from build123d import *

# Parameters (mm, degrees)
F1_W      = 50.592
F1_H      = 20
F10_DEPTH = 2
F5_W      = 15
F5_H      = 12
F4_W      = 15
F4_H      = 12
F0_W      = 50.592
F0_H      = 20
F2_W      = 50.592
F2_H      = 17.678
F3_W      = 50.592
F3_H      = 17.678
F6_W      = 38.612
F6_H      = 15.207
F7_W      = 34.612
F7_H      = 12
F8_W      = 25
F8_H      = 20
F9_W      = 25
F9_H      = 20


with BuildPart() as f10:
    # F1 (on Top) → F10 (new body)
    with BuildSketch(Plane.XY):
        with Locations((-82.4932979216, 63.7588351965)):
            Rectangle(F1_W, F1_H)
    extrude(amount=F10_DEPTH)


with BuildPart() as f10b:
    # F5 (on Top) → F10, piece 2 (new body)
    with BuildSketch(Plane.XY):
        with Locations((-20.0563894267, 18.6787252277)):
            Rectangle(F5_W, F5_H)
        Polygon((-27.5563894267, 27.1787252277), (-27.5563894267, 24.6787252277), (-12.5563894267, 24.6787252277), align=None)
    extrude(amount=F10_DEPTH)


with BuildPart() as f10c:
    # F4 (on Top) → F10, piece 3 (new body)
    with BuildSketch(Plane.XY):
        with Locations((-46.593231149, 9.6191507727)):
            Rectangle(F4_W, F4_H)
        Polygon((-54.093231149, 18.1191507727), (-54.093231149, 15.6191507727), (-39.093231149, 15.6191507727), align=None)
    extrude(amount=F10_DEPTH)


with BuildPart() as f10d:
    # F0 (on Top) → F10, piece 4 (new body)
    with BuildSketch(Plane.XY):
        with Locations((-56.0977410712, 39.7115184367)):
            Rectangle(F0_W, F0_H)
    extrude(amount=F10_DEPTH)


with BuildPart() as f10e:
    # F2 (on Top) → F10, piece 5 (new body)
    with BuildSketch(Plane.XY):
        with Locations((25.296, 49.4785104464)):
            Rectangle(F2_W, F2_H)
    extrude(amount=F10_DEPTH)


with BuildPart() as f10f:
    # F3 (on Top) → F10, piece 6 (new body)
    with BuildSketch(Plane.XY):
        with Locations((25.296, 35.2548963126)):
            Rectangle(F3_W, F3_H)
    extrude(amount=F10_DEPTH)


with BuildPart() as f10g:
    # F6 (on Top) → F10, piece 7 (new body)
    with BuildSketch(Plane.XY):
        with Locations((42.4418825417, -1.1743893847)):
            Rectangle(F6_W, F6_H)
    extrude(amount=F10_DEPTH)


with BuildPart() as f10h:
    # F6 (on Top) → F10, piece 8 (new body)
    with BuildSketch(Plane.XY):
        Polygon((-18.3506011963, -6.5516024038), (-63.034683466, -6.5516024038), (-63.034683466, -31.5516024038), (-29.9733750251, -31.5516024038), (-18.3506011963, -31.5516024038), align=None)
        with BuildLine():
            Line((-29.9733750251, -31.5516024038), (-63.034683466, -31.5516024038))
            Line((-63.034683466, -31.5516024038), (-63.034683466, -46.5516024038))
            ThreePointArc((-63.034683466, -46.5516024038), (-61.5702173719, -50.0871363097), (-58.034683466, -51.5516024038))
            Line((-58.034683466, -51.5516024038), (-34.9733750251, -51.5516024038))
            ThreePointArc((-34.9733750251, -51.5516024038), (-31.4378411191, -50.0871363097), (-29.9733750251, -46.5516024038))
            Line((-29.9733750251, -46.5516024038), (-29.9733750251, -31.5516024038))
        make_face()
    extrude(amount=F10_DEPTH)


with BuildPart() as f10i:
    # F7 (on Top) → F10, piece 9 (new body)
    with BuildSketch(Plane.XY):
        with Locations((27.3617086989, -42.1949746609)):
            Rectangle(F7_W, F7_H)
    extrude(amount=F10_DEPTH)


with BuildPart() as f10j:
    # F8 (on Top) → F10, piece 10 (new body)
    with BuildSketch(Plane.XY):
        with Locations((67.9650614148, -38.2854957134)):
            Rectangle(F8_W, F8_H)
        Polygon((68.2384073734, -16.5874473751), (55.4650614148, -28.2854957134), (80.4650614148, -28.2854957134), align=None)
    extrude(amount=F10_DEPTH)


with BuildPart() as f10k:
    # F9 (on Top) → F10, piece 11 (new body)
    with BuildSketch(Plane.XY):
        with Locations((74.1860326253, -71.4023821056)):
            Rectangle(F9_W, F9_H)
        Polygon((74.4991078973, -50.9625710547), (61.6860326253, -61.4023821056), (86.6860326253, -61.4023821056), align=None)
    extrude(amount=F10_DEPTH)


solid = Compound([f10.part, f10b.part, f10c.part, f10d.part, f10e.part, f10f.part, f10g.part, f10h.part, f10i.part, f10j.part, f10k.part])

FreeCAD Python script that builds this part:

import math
import FreeCAD as App
import Part
import Sketcher

V = App.Vector

doc = App.newDocument("Part")
body = doc.addObject("PartDesign::Body", "Body")

# Sketch on XY plane
sketch1 = body.newObject("Sketcher::SketchObject", "Sketch")
sketch1.AttachmentSupport = (doc.getObject("XY_Plane"), [""])
sketch1.MapMode = "FlatFace"
sketch1.addGeometry([
    Part.LineSegment(V(-108, 74, 0), V(-108, 54, 0)),
    Part.LineSegment(V(-108, 54, 0), V(-57, 54, 0)),
    Part.LineSegment(V(-57, 54, 0), V(-57, 74, 0)),
    Part.LineSegment(V(-57, 74, 0), V(-108, 74, 0)),
], False)
sketch1.addConstraint([
    Sketcher.Constraint("Coincident", 0, 2, 1, 1),
    Sketcher.Constraint("Coincident", 1, 2, 2, 1),
    Sketcher.Constraint("Coincident", 2, 2, 3, 1),
    Sketcher.Constraint("Coincident", 3, 2, 0, 1),
    Sketcher.Constraint("Vertical", 0),
    Sketcher.Constraint("Horizontal", 1),
    Sketcher.Constraint("Vertical", 2),
    Sketcher.Constraint("Horizontal", 3),
    Sketcher.Constraint("DistanceY", 0, 2, 0, 1, 20.0),
    Sketcher.Constraint("DistanceX", 1, 1, 1, 2, 50.592),
    Sketcher.Constraint("DistanceX", 0, 2, -1, 1, 107.789298),
    Sketcher.Constraint("DistanceY", -1, 1, 0, 2, 53.758835),
])
pad1 = body.newObject("PartDesign::Pad", "Pad")
pad1.Profile = sketch1
pad1.Length = 2
body2 = doc.addObject("PartDesign::Body", "Body001")

# Sketch on XY plane
sketch2 = body2.newObject("Sketcher::SketchObject", "Sketch001")
sketch2.AttachmentSupport = (doc.getObject("XY_Plane001"), [""])
sketch2.MapMode = "FlatFace"
sketch2.addGeometry([
    Part.LineSegment(V(-28, 13, 0), V(-13, 13, 0)),
    Part.LineSegment(V(-13, 13, 0), V(-13, 25, 0)),
    Part.LineSegment(V(-13, 25, 0), V(-28, 27, 0)),
    Part.LineSegment(V(-28, 27, 0), V(-28, 13, 0)),
], False)
sketch2.addConstraint([
    Sketcher.Constraint("Coincident", 0, 2, 1, 1),
    Sketcher.Constraint("Coincident", 1, 2, 2, 1),
    Sketcher.Constraint("Coincident", 2, 2, 3, 1),
    Sketcher.Constraint("Coincident", 3, 2, 0, 1),
    Sketcher.Constraint("Horizontal", 0),
    Sketcher.Constraint("Vertical", 1),
    Sketcher.Constraint("Vertical", 3),
    Sketcher.Constraint("DistanceX", 0, 1, 0, 2, 15.0),
    Sketcher.Constraint("DistanceY", 1, 1, 1, 2, 12.0),
    Sketcher.Constraint("DistanceY", 3, 2, 3, 1, 14.5),
    Sketcher.Constraint("DistanceX", 0, 2, -1, 1, 12.556389),
    Sketcher.Constraint("DistanceY", -1, 1, 0, 2, 12.678725),
])
pad2 = body2.newObject("PartDesign::Pad", "Pad001")
pad2.Profile = sketch2
pad2.Length = 2
body3 = doc.addObject("PartDesign::Body", "Body002")

# Sketch on XY plane
sketch3 = body3.newObject("Sketcher::SketchObject", "Sketch002")
sketch3.AttachmentSupport = (doc.getObject("XY_Plane002"), [""])
sketch3.MapMode = "FlatFace"
sketch3.addGeometry([
    Part.LineSegment(V(-54, 4, 0), V(-39, 4, 0)),
    Part.LineSegment(V(-39, 4, 0), V(-39, 16, 0)),
    Part.LineSegment(V(-39, 16, 0), V(-54, 18, 0)),
    Part.LineSegment(V(-54, 18, 0), V(-54, 4, 0)),
], False)
sketch3.addConstraint([
    Sketcher.Constraint("Coincident", 0, 2, 1, 1),
    Sketcher.Constraint("Coincident", 1, 2, 2, 1),
    Sketcher.Constraint("Coincident", 2, 2, 3, 1),
    Sketcher.Constraint("Coincident", 3, 2, 0, 1),
    Sketcher.Constraint("Horizontal", 0),
    Sketcher.Constraint("Vertical", 1),
    Sketcher.Constraint("Vertical", 3),
    Sketcher.Constraint("DistanceX", 0, 1, 0, 2, 15.0),
    Sketcher.Constraint("DistanceY", 1, 1, 1, 2, 12.0),
    Sketcher.Constraint("DistanceY", 3, 2, 3, 1, 14.5),
    Sketcher.Constraint("DistanceX", 0, 2, -1, 1, 39.093231),
    Sketcher.Constraint("DistanceY", -1, 1, 0, 2, 3.619151),
])
pad3 = body3.newObject("PartDesign::Pad", "Pad002")
pad3.Profile = sketch3
pad3.Length = 2
body4 = doc.addObject("PartDesign::Body", "Body003")

# Sketch on XY plane
sketch4 = body4.newObject("Sketcher::SketchObject", "Sketch003")
sketch4.AttachmentSupport = (doc.getObject("XY_Plane003"), [""])
sketch4.MapMode = "FlatFace"
sketch4.addGeometry([
    Part.LineSegment(V(-81, 50, 0), V(-81, 30, 0)),
    Part.LineSegment(V(-81, 30, 0), V(-31, 30, 0)),
    Part.LineSegment(V(-31, 30, 0), V(-31, 50, 0)),
    Part.LineSegment(V(-31, 50, 0), V(-81, 50, 0)),
], False)
sketch4.addConstraint([
    Sketcher.Constraint("Coincident", 0, 2, 1, 1),
    Sketcher.Constraint("Coincident", 1, 2, 2, 1),
    Sketcher.Constraint("Coincident", 2, 2, 3, 1),
    Sketcher.Constraint("Coincident", 3, 2, 0, 1),
    Sketcher.Constraint("Vertical", 0),
    Sketcher.Constraint("Horizontal", 1),
    Sketcher.Constraint("Vertical", 2),
    Sketcher.Constraint("Horizontal", 3),
    Sketcher.Constraint("DistanceY", 0, 2, 0, 1, 20.0),
    Sketcher.Constraint("DistanceX", 1, 1, 1, 2, 50.592),
    Sketcher.Constraint("DistanceX", 0, 2, -1, 1, 81.393741),
    Sketcher.Constraint("DistanceY", -1, 1, 0, 2, 29.711518),
])
pad4 = body4.newObject("PartDesign::Pad", "Pad003")
pad4.Profile = sketch4
pad4.Length = 2
body5 = doc.addObject("PartDesign::Body", "Body004")

# Sketch on XY plane
sketch5 = body5.newObject("Sketcher::SketchObject", "Sketch004")
sketch5.AttachmentSupport = (doc.getObject("XY_Plane004"), [""])
sketch5.MapMode = "FlatFace"
sketch5.addGeometry([
    Part.LineSegment(V(0, 58, 0), V(0, 41, 0)),
    Part.LineSegment(V(0, 41, 0), V(51, 41, 0)),
    Part.LineSegment(V(51, 41, 0), V(51, 58, 0)),
    Part.LineSegment(V(51, 58, 0), V(0, 58, 0)),
], False)
sketch5.addConstraint([
    Sketcher.Constraint("Coincident", 0, 2, 1, 1),
    Sketcher.Constraint("Coincident", 1, 2, 2, 1),
    Sketcher.Constraint("Coincident", 2, 2, 3, 1),
    Sketcher.Constraint("Coincident", 3, 2, 0, 1),
    Sketcher.Constraint("Vertical", 0),
    Sketcher.Constraint("Horizontal", 1),
    Sketcher.Constraint("Vertical", 2),
    Sketcher.Constraint("Horizontal", 3),
    Sketcher.Constraint("PointOnObject", 0, 2, -2),
    Sketcher.Constraint("DistanceX", 1, 1, 1, 2, 50.592),
    Sketcher.Constraint("DistanceY", 0, 2, 0, 1, 17.678),
    Sketcher.Constraint("DistanceY", -1, 1, 0, 2, 40.63951),
])
pad5 = body5.newObject("PartDesign::Pad", "Pad004")
pad5.Profile = sketch5
pad5.Length = 2
body6 = doc.addObject("PartDesign::Body", "Body005")

# Sketch on XY plane
sketch6 = body6.newObject("Sketcher::SketchObject", "Sketch005")
sketch6.AttachmentSupport = (doc.getObject("XY_Plane005"), [""])
sketch6.MapMode = "FlatFace"
sketch6.addGeometry([
    Part.LineSegment(V(0, 44, 0), V(0, 26, 0)),
    Part.LineSegment(V(0, 26, 0), V(51, 26, 0)),
    Part.LineSegment(V(51, 26, 0), V(51, 44, 0)),
    Part.LineSegment(V(51, 44, 0), V(0, 44, 0)),
], False)
sketch6.addConstraint([
    Sketcher.Constraint("Coincident", 0, 2, 1, 1),
    Sketcher.Constraint("Coincident", 1, 2, 2, 1),
    Sketcher.Constraint("Coincident", 2, 2, 3, 1),
    Sketcher.Constraint("Coincident", 3, 2, 0, 1),
    Sketcher.Constraint("Vertical", 0),
    Sketcher.Constraint("Horizontal", 1),
    Sketcher.Constraint("Vertical", 2),
    Sketcher.Constraint("Horizontal", 3),
    Sketcher.Constraint("PointOnObject", 0, 2, -2),
    Sketcher.Constraint("DistanceX", 1, 1, 1, 2, 50.592),
    Sketcher.Constraint("DistanceY", 0, 2, 0, 1, 17.678),
    Sketcher.Constraint("DistanceY", -1, 1, 0, 2, 26.415896),
])
pad6 = body6.newObject("PartDesign::Pad", "Pad005")
pad6.Profile = sketch6
pad6.Length = 2
body7 = doc.addObject("PartDesign::Body", "Body006")

# Sketch on XY plane
sketch7 = body7.newObject("Sketcher::SketchObject", "Sketch006")
sketch7.AttachmentSupport = (doc.getObject("XY_Plane006"), [""])
sketch7.MapMode = "FlatFace"
sketch7.addGeometry([
    Part.LineSegment(V(23, 6, 0), V(23, -9, 0)),
    Part.LineSegment(V(23, -9, 0), V(62, -9, 0)),
    Part.LineSegment(V(62, -9, 0), V(62, 6, 0)),
    Part.LineSegment(V(62, 6, 0), V(23, 6, 0)),
], False)
sketch7.addConstraint([
    Sketcher.Constraint("Coincident", 0, 2, 1, 1),
    Sketcher.Constraint("Coincident", 1, 2, 2, 1),
    Sketcher.Constraint("Coincident", 2, 2, 3, 1),
    Sketcher.Constraint("Coincident", 3, 2, 0, 1),
    Sketcher.Constraint("Vertical", 0),
    Sketcher.Constraint("Horizontal", 1),
    Sketcher.Constraint("Vertical", 2),
    Sketcher.Constraint("Horizontal", 3),
    Sketcher.Constraint("DistanceX", 1, 1, 1, 2, 38.612),
    Sketcher.Constraint("DistanceY", 0, 2, 0, 1, 15.207),
    Sketcher.Constraint("DistanceY", 0, 2, -1, 1, 8.777889),
    Sketcher.Constraint("DistanceX", -1, 1, 0, 2, 23.135883),
])
pad7 = body7.newObject("PartDesign::Pad", "Pad006")
pad7.Profile = sketch7
pad7.Length = 2
body8 = doc.addObject("PartDesign::Body", "Body007")

# Sketch on XY plane
sketch8 = body8.newObject("Sketcher::SketchObject", "Sketch007")
sketch8.AttachmentSupport = (doc.getObject("XY_Plane007"), [""])
sketch8.MapMode = "FlatFace"
sketch8.addGeometry([
    Part.LineSegment(V(-18, -7, 0), V(-63, -7, 0)),  # 0
    Part.LineSegment(V(-63, -7, 0), V(-63, -47, 0)),  # 1
    Part.ArcOfCircle(Part.Circle(V(-58, -47, 0), V(0, 0, 1), 5), math.radians(180), math.radians(270)),  # 2
    Part.LineSegment(V(-58, -52, 0), V(-35, -52, 0)),  # 3
    Part.ArcOfCircle(Part.Circle(V(-35, -47, 0), V(0, 0, 1), 5), math.radians(-90), math.radians(0)),  # 4
    Part.LineSegment(V(-30, -47, 0), V(-30, -32, 0)),  # 5
    Part.LineSegment(V(-30, -32, 0), V(-18, -32, 0)),  # 6
    Part.LineSegment(V(-18, -32, 0), V(-18, -7, 0)),  # 7
], False)
sketch8.addConstraint([
    Sketcher.Constraint("Coincident", 0, 2, 1, 1),
    Sketcher.Constraint("Tangent", 1, 2, 2, 1),
    Sketcher.Constraint("Tangent", 2, 2, 3, 1),
    Sketcher.Constraint("Tangent", 3, 2, 4, 1),
    Sketcher.Constraint("Tangent", 4, 2, 5, 1),
    Sketcher.Constraint("Coincident", 5, 2, 6, 1),
    Sketcher.Constraint("Coincident", 6, 2, 7, 1),
    Sketcher.Constraint("Coincident", 7, 2, 0, 1),
    Sketcher.Constraint("Horizontal", 0),
    Sketcher.Constraint("Vertical", 1),
    Sketcher.Constraint("Horizontal", 3),
    Sketcher.Constraint("Vertical", 5),
    Sketcher.Constraint("Horizontal", 6),
    Sketcher.Constraint("Vertical", 7),
    Sketcher.Constraint("Equal", 2, 4),
    Sketcher.Constraint("Radius", 2, 5.0),
    Sketcher.Constraint("DistanceY", 1, 2, 1, 1, 40.0),
    Sketcher.Constraint("DistanceY", 5, 1, 5, 2, 15.0),
    Sketcher.Constraint("DistanceX", 3, 1, 3, 2, 23.061308),
    Sketcher.Constraint("DistanceX", 6, 2, -1, 1, 18.350601),
    Sketcher.Constraint("DistanceX", 0, 2, 0, 1, 44.684082),
    Sketcher.Constraint("DistanceY", 2, 3, -1, 1, 46.551602),
])
pad8 = body8.newObject("PartDesign::Pad", "Pad007")
pad8.Profile = sketch8
pad8.Length = 2
body9 = doc.addObject("PartDesign::Body", "Body008")

# Sketch on XY plane
sketch9 = body9.newObject("Sketcher::SketchObject", "Sketch008")
sketch9.AttachmentSupport = (doc.getObject("XY_Plane008"), [""])
sketch9.MapMode = "FlatFace"
sketch9.addGeometry([
    Part.LineSegment(V(10, -36, 0), V(10, -48, 0)),
    Part.LineSegment(V(10, -48, 0), V(45, -48, 0)),
    Part.LineSegment(V(45, -48, 0), V(45, -36, 0)),
    Part.LineSegment(V(45, -36, 0), V(10, -36, 0)),
], False)
sketch9.addConstraint([
    Sketcher.Constraint("Coincident", 0, 2, 1, 1),
    Sketcher.Constraint("Coincident", 1, 2, 2, 1),
    Sketcher.Constraint("Coincident", 2, 2, 3, 1),
    Sketcher.Constraint("Coincident", 3, 2, 0, 1),
    Sketcher.Constraint("Vertical", 0),
    Sketcher.Constraint("Horizontal", 1),
    Sketcher.Constraint("Vertical", 2),
    Sketcher.Constraint("Horizontal", 3),
    Sketcher.Constraint("DistanceY", 0, 2, 0, 1, 12.0),
    Sketcher.Constraint("DistanceX", 1, 1, 1, 2, 34.612),
    Sketcher.Constraint("DistanceX", -1, 1, 0, 2, 10.055709),
    Sketcher.Constraint("DistanceY", 0, 2, -1, 1, 48.194975),
])
pad9 = body9.newObject("PartDesign::Pad", "Pad008")
pad9.Profile = sketch9
pad9.Length = 2
body10 = doc.addObject("PartDesign::Body", "Body009")

# Sketch on XY plane
sketch10 = body10.newObject("Sketcher::SketchObject", "Sketch009")
sketch10.AttachmentSupport = (doc.getObject("XY_Plane009"), [""])
sketch10.MapMode = "FlatFace"
sketch10.addGeometry([
    Part.LineSegment(V(55, -28, 0), V(55, -48, 0)),  # 0
    Part.LineSegment(V(55, -48, 0), V(80, -48, 0)),  # 1
    Part.LineSegment(V(80, -48, 0), V(80, -28, 0)),  # 2
    Part.LineSegment(V(80, -28, 0), V(68, -17, 0)),  # 3
    Part.LineSegment(V(68, -17, 0), V(55, -28, 0)),  # 4
], False)
sketch10.addConstraint([
    Sketcher.Constraint("Coincident", 0, 2, 1, 1),
    Sketcher.Constraint("Coincident", 1, 2, 2, 1),
    Sketcher.Constraint("Coincident", 2, 2, 3, 1),
    Sketcher.Constraint("Coincident", 3, 2, 4, 1),
    Sketcher.Constraint("Coincident", 4, 2, 0, 1),
    Sketcher.Constraint("Vertical", 0),
    Sketcher.Constraint("Horizontal", 1),
    Sketcher.Constraint("Vertical", 2),
    Sketcher.Constraint("Horizontal", 2, 2, 4, 2),
    Sketcher.Constraint("DistanceX", 1, 1, 1, 2, 25.0),
    Sketcher.Constraint("DistanceY", 0, 2, 0, 1, 20.0),
    Sketcher.Constraint("Distance", 3, 16.921448),
    Sketcher.Constraint("DistanceX", -1, 1, 0, 2, 55.465061),
    Sketcher.Constraint("DistanceY", 2, 2, 3, 2, 11.698048),
    Sketcher.Constraint("DistanceY", 0, 2, -1, 1, 48.285496),
])
pad10 = body10.newObject("PartDesign::Pad", "Pad009")
pad10.Profile = sketch10
pad10.Length = 2
body11 = doc.addObject("PartDesign::Body", "Body010")

# Sketch on XY plane
sketch11 = body11.newObject("Sketcher::SketchObject", "Sketch010")
sketch11.AttachmentSupport = (doc.getObject("XY_Plane010"), [""])
sketch11.MapMode = "FlatFace"
sketch11.addGeometry([
    Part.LineSegment(V(62, -61, 0), V(62, -81, 0)),  # 0
    Part.LineSegment(V(62, -81, 0), V(87, -81, 0)),  # 1
    Part.LineSegment(V(87, -81, 0), V(87, -61, 0)),  # 2
    Part.LineSegment(V(87, -61, 0), V(74, -51, 0)),  # 3
    Part.LineSegment(V(74, -51, 0), V(62, -61, 0)),  # 4
], False)
sketch11.addConstraint([
    Sketcher.Constraint("Coincident", 0, 2, 1, 1),
    Sketcher.Constraint("Coincident", 1, 2, 2, 1),
    Sketcher.Constraint("Coincident", 2, 2, 3, 1),
    Sketcher.Constraint("Coincident", 3, 2, 4, 1),
    Sketcher.Constraint("Coincident", 4, 2, 0, 1),
    Sketcher.Constraint("Vertical", 0),
    Sketcher.Constraint("Horizontal", 1),
    Sketcher.Constraint("Vertical", 2),
    Sketcher.Constraint("Horizontal", 2, 2, 4, 2),
    Sketcher.Constraint("DistanceX", 1, 1, 1, 2, 25.0),
    Sketcher.Constraint("DistanceY", 0, 2, 0, 1, 20.0),
    Sketcher.Constraint("Distance", 4, 16.52769),
    Sketcher.Constraint("DistanceY", 3, 2, -1, 1, 50.962571),
    Sketcher.Constraint("DistanceY", 2, 2, 3, 2, 10.439811),
    Sketcher.Constraint("DistanceX", -1, 1, 0, 2, 61.686033),
])
pad11 = body11.newObject("PartDesign::Pad", "Pad010")
pad11.Profile = sketch11
pad11.Length = 2

doc.recompute()
